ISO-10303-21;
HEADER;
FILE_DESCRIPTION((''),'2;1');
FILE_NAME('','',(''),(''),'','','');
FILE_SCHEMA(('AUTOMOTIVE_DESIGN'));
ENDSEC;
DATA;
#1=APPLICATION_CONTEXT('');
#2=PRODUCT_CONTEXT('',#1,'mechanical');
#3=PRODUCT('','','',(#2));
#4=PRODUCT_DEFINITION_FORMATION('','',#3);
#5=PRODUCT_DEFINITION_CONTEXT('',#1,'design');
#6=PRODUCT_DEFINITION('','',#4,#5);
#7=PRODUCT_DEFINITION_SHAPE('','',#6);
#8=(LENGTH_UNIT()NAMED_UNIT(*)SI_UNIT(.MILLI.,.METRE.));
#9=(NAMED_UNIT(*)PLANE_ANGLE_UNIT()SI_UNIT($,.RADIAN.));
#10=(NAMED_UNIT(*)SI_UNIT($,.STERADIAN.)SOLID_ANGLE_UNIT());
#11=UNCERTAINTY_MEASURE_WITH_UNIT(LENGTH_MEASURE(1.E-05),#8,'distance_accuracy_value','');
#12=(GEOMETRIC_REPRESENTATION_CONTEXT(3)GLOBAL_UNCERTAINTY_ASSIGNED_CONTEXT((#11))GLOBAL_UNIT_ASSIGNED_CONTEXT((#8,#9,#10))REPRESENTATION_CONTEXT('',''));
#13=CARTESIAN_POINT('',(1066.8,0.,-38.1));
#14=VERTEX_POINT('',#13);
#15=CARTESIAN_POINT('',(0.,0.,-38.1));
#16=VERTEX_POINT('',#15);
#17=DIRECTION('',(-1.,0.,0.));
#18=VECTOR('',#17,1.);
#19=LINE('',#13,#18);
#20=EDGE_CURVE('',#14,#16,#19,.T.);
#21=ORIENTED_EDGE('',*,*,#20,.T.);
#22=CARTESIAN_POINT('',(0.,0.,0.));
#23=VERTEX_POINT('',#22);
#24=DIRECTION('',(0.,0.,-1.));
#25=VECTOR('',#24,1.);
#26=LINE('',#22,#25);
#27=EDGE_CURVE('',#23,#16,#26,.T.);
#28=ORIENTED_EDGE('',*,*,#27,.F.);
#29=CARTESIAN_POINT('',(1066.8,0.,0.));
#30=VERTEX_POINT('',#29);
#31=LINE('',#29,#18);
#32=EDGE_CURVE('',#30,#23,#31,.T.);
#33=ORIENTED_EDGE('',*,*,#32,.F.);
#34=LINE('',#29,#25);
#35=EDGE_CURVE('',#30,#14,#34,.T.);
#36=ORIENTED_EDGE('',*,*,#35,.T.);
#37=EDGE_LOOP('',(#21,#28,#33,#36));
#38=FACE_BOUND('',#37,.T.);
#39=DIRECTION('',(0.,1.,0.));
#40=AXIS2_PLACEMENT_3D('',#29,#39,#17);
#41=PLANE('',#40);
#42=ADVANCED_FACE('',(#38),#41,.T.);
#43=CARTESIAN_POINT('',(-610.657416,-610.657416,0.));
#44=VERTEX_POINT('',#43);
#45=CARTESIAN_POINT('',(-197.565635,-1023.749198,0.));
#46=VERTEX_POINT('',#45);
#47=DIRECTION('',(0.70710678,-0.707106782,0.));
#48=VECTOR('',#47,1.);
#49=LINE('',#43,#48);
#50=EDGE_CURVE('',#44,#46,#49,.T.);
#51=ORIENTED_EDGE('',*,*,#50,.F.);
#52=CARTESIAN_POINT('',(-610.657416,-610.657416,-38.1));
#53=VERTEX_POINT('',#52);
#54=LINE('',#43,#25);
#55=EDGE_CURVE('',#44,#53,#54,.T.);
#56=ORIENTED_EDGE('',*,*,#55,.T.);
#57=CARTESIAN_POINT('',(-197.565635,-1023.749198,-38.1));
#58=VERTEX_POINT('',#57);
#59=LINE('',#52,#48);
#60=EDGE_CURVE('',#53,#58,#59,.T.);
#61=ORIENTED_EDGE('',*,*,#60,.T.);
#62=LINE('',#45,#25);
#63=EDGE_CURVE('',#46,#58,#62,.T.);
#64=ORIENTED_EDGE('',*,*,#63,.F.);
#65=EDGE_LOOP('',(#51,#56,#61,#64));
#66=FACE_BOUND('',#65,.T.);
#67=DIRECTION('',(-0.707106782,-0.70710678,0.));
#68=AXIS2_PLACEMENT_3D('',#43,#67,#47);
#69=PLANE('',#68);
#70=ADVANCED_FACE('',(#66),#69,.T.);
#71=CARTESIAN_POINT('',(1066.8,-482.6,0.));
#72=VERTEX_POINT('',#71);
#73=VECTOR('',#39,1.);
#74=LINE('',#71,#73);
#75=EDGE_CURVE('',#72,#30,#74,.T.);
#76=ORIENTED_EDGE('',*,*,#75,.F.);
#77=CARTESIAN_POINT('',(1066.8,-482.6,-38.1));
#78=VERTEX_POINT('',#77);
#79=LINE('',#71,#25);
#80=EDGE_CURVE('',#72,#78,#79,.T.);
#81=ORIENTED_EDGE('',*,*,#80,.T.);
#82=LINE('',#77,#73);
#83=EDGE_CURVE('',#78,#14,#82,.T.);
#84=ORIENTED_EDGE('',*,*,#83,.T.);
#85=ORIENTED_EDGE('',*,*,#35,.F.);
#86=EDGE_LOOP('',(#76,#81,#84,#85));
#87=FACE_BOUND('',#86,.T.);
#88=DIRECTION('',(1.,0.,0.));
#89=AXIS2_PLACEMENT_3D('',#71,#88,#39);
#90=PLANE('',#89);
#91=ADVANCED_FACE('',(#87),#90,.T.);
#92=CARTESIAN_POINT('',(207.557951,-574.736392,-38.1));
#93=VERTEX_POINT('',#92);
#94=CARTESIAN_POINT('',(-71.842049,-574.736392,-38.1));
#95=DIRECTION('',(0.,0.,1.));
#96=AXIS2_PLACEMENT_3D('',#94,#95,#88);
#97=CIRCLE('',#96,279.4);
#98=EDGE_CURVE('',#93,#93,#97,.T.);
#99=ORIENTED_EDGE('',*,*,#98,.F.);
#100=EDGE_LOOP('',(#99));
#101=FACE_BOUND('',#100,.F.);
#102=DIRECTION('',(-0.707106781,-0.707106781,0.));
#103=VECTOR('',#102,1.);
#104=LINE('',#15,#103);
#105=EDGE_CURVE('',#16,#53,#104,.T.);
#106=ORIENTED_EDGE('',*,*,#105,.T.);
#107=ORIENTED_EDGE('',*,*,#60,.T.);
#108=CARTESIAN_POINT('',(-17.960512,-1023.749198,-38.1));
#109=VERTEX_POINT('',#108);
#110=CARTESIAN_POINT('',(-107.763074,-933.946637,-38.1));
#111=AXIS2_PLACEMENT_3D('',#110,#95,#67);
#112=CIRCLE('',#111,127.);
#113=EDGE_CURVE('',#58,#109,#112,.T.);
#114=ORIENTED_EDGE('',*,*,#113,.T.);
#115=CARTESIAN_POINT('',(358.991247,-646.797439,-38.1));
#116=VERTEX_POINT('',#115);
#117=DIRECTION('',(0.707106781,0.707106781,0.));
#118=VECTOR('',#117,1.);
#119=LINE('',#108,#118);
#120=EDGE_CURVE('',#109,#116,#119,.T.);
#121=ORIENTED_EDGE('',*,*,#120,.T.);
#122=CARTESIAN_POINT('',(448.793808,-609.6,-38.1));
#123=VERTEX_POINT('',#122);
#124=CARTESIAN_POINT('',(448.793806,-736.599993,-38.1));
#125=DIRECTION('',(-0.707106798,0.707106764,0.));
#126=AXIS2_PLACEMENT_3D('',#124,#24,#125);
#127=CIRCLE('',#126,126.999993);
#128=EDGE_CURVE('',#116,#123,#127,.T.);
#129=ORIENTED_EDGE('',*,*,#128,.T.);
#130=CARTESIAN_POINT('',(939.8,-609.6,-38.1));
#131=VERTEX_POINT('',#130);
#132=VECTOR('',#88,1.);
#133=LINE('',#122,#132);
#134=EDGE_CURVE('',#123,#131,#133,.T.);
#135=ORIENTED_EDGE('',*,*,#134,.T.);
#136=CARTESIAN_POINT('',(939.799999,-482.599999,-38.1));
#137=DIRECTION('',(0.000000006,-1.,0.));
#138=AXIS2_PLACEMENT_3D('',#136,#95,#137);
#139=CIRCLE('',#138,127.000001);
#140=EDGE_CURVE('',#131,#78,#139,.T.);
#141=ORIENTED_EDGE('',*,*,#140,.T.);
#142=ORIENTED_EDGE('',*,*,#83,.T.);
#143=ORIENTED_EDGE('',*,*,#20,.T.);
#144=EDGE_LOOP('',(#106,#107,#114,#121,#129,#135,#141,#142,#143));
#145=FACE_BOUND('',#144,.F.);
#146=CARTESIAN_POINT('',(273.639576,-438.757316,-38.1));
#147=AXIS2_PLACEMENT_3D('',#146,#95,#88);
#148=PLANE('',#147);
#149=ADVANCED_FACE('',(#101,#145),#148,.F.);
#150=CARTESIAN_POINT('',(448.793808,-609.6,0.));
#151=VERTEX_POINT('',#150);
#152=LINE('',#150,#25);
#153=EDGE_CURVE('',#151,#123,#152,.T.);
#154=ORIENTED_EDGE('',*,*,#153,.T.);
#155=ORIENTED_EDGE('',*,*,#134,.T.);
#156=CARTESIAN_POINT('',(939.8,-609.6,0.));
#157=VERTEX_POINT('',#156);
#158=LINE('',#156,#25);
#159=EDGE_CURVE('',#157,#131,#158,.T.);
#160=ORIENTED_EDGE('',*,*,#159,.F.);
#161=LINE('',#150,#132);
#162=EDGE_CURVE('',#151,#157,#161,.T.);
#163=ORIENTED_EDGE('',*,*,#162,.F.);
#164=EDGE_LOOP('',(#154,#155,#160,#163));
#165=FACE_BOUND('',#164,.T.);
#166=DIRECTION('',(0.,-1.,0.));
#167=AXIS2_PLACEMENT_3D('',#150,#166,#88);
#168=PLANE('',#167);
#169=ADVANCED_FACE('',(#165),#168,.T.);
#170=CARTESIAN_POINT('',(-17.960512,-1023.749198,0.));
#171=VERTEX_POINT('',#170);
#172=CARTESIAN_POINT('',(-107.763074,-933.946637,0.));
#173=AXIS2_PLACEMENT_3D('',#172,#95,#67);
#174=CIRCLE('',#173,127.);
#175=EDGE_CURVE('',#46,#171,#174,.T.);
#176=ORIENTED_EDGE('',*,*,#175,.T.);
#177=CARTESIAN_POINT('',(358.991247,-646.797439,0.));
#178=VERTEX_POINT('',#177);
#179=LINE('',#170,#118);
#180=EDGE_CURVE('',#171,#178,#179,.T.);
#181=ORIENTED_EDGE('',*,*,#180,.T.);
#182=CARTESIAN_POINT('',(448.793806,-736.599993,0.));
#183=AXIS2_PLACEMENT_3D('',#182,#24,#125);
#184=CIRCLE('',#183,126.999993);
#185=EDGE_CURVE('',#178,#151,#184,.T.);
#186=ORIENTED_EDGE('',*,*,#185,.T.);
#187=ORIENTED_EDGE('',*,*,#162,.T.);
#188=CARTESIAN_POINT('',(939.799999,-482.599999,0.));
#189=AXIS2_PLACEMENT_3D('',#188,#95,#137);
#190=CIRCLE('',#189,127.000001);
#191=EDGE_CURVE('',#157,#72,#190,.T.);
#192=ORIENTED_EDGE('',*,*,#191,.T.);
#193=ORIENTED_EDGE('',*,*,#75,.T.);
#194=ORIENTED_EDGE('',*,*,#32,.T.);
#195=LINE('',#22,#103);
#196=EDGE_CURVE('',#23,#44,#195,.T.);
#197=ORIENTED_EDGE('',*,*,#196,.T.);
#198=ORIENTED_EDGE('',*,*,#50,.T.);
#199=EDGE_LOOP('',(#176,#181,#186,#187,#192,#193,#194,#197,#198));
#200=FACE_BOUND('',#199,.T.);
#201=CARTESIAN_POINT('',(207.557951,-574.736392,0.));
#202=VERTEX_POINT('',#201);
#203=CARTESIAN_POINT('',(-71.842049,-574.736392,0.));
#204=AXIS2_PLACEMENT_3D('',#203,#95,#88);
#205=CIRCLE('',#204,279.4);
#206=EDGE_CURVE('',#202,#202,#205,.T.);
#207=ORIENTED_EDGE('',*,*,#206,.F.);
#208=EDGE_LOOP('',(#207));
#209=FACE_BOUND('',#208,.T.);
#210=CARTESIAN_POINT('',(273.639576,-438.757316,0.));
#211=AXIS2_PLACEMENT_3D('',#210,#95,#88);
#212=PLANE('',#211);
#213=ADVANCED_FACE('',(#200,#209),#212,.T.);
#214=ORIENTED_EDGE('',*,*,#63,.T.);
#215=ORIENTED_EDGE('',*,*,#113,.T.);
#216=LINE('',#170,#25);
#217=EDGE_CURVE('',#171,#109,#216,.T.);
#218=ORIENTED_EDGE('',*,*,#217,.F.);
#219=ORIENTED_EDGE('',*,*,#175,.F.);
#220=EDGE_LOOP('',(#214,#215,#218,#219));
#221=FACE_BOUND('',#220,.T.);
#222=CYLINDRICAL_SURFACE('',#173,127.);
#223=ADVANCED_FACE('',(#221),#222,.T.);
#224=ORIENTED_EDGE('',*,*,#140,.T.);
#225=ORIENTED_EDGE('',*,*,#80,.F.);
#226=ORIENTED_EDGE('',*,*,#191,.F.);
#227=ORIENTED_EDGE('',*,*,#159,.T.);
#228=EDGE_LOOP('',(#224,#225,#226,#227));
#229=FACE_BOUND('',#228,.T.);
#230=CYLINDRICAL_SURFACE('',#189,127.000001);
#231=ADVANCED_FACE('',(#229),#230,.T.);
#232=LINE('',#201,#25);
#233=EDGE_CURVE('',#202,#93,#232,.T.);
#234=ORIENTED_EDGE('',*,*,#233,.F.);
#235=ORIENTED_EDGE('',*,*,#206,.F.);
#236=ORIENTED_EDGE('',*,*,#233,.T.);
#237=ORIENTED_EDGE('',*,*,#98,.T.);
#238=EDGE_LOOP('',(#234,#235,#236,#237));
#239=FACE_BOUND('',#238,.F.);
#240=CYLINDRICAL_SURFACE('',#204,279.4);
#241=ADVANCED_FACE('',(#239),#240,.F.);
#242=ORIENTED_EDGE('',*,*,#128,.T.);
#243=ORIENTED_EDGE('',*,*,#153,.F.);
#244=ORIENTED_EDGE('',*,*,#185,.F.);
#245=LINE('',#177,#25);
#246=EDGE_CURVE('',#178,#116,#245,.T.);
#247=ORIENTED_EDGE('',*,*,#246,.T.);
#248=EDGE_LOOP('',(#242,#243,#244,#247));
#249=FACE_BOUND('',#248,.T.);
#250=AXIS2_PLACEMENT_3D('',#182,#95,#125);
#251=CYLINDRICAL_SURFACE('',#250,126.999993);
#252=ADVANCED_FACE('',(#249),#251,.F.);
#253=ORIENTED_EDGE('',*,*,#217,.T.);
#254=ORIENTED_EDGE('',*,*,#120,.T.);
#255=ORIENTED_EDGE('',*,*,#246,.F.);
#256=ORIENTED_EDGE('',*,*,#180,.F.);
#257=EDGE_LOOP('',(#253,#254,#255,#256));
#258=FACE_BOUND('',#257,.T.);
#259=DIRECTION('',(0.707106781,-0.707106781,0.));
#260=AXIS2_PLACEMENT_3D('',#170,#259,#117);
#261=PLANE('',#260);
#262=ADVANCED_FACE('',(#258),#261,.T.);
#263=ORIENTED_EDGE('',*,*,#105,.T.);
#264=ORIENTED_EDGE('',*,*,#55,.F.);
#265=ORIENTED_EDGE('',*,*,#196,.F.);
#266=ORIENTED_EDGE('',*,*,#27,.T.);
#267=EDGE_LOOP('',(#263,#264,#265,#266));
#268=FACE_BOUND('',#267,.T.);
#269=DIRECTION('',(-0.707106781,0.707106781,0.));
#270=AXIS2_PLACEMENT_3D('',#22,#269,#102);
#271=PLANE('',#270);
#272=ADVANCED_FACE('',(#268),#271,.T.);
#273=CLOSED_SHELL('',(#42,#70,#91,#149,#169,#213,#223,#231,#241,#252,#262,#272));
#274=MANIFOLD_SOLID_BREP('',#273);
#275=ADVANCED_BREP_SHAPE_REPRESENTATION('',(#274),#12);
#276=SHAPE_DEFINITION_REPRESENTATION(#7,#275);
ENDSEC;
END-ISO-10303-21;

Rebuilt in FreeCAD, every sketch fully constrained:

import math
import FreeCAD as App
import Part
import Sketcher
from FreeCAD import Vector
Q = App.Units.Quantity

doc = App.newDocument("Part")
body = doc.addObject("PartDesign::Body", "Body")

sketch1 = doc.addObject("Sketcher::SketchObject", "Sketch")
body.addObject(sketch1)
sketch1.AttachmentSupport = (doc.XY_Plane, [""])
sketch1.MapMode = "FlatFace"
sketch1.addGeometry([
    Part.LineSegment(Vector(1067, 0, 0), Vector(0, 0, 0)),
    Part.LineSegment(Vector(0, 0, 0), Vector(-611, -611, 0)),
    Part.LineSegment(Vector(-611, -611, 0), Vector(-198, -1024, 0)),
    Part.ArcOfCircle(Part.Circle(Vector(-108, -934, 0), Vector(0, 0, 1), 127), math.radians(-135), math.radians(-45)),
    Part.LineSegment(Vector(-18, -1024, 0), Vector(359, -647, 0)),
    Part.ArcOfCircle(Part.Circle(Vector(449, -737, 0), Vector(0, 0, 1), 127), math.radians(90), math.radians(135)),
    Part.LineSegment(Vector(449, -610, 0), Vector(940, -610, 0)),
    Part.ArcOfCircle(Part.Circle(Vector(940, -483, 0), Vector(0, 0, 1), 127), math.radians(-90), math.radians(0)),
    Part.LineSegment(Vector(1067, -483, 0), Vector(1067, 0, 0)),
    Part.Circle(Vector(-72, -575, 0), Vector(0, 0, 1), 279),
], False)
sketch1.addConstraint([
    Sketcher.Constraint("Coincident", 0, 2, 1, 1),
    Sketcher.Constraint("Coincident", 1, 2, 2, 1),
    Sketcher.Constraint("Tangent", 2, 2, 3, 1),
    Sketcher.Constraint("Tangent", 3, 2, 4, 1),
    Sketcher.Constraint("Tangent", 4, 2, 5, 2),
    Sketcher.Constraint("Tangent", 5, 1, 6, 1),
    Sketcher.Constraint("Tangent", 6, 2, 7, 1),
    Sketcher.Constraint("Tangent", 7, 2, 8, 1),
    Sketcher.Constraint("Coincident", 8, 2, 0, 1),
    Sketcher.Constraint("Horizontal", 0),
    Sketcher.Constraint("Horizontal", 6),
    Sketcher.Constraint("Vertical", 8),
    Sketcher.Constraint("Coincident", 0, 2, -1, 1),
    Sketcher.Constraint("Equal", 3, 7),
    Sketcher.Constraint("Perpendicular", 1, 2),
    Sketcher.Constraint("Perpendicular", 2, 4),
    Sketcher.Constraint("Diameter", 9, Q("22 in")),
    Sketcher.Constraint("Radius", 3, Q("5 in")),
    Sketcher.Constraint("DistanceX", 0, 2, 0, 1, Q("42 in")),
    Sketcher.Constraint("DistanceY", 8, 1, 8, 2, Q("19 in")),
    Sketcher.Constraint("Distance", 1, Q("34 in")),
    Sketcher.Constraint("Distance", 2, Q("23 in")),
    Sketcher.Constraint("Angle", 1, Q("-135 deg")),
    Sketcher.Constraint("Radius", 5, Q("126.999993 mm")),
    Sketcher.Constraint("DistanceY", 5, 3, 9, 3, Q("161.863601 mm")),
    Sketcher.Constraint("DistanceX", 9, 3, -1, 1, Q("71.842049 mm")),
])
pad1 = doc.addObject("PartDesign::Pad", "Pad")
body.addObject(pad1)
pad1.Profile = sketch1
pad1.Length = Q("1.5 in")
pad1.Reversed = True

doc.recompute()
